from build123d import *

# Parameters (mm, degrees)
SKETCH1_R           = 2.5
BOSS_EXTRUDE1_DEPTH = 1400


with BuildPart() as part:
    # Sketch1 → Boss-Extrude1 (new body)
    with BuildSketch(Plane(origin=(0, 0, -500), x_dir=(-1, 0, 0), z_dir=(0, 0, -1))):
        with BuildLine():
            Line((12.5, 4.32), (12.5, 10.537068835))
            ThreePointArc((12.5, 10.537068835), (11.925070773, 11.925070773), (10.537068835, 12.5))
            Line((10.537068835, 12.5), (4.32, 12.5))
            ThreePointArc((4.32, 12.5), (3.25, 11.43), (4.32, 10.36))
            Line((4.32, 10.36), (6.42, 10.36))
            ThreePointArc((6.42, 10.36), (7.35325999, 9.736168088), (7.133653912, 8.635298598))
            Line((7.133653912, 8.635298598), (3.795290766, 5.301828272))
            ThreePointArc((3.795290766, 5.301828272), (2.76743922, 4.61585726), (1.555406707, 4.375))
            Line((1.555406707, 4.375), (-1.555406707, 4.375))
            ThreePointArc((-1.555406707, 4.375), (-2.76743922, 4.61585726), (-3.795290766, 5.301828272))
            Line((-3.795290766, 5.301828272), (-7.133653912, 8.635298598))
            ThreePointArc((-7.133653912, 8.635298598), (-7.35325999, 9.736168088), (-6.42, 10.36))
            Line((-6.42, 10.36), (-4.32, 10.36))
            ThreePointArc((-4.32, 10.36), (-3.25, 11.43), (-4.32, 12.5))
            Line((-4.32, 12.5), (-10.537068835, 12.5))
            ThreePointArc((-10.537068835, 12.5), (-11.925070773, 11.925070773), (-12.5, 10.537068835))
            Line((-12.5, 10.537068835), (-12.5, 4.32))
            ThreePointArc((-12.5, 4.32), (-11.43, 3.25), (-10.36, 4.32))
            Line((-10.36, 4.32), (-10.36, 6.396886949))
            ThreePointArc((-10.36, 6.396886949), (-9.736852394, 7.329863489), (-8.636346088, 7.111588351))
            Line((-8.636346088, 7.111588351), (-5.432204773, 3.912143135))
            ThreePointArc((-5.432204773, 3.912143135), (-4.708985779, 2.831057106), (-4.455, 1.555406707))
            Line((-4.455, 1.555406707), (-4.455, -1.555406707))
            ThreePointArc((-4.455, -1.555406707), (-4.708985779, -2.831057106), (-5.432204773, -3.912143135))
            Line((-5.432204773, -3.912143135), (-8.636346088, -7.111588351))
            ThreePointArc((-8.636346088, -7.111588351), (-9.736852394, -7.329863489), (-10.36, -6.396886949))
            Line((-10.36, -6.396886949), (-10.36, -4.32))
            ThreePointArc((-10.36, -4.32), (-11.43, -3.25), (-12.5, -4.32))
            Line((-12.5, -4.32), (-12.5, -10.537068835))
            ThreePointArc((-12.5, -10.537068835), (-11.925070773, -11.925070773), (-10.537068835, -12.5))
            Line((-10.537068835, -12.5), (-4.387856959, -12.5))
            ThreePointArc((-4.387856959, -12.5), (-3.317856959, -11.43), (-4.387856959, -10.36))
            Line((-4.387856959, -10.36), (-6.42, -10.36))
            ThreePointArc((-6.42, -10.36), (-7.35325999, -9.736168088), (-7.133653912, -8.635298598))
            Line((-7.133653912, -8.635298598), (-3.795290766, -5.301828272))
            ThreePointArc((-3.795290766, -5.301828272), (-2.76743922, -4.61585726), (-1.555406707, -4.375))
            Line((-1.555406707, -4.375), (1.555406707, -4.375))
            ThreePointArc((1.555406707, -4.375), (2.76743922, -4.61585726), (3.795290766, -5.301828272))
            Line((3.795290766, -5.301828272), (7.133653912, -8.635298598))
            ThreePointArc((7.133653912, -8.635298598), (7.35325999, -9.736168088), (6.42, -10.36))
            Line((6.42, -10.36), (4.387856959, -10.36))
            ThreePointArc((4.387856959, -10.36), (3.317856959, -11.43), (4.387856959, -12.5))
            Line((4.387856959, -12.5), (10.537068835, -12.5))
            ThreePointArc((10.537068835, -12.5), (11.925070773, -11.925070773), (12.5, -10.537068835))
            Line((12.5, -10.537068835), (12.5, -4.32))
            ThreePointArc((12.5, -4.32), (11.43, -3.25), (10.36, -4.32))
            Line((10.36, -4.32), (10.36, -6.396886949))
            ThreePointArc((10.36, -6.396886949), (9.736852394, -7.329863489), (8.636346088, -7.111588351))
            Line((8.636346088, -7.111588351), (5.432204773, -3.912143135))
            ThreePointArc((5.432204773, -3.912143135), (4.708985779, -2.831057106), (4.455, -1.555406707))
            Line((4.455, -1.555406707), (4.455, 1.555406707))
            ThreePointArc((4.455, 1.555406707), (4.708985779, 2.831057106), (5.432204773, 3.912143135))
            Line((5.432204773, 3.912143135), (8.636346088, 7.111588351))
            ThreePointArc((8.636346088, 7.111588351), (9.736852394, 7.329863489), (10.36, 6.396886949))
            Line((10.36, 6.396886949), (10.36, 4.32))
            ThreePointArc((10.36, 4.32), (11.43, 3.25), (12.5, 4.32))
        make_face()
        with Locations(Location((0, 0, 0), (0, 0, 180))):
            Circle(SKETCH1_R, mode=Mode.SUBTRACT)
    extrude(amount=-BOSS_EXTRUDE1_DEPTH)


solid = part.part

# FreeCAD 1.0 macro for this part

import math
import FreeCAD as App
import Part
import Sketcher

V = App.Vector
Q = App.Units.Quantity

doc = App.newDocument("Part")
params = doc.addObject("Spreadsheet::Sheet", "Params")
for row, (alias, value) in enumerate([
    ("sketch1_diameter", "5 mm"),
    ("sketch1_radius", "1.07 mm"),
    ("sketch1_radius2", "1.01 mm"),
    ("sketch1_radius3", "3.17 mm"),
    ("sketch1_width", "2.1 mm"),
    ("pad1_length", "1400 mm"),
], start=1):
    params.set(f"A{row}", alias)
    params.set(f"B{row}", "=" + value)
    params.setAlias(f"B{row}", alias)

body = doc.addObject("PartDesign::Body", "Body")

# Sketch on XY plane
sketch1 = body.newObject("Sketcher::SketchObject", "Sketch")
sketch1.AttachmentSupport = (doc.getObject("XY_Plane"), [""])
sketch1.MapMode = "FlatFace"
sketch1.AttachmentOffset = App.Placement(V(0, 0, -500), App.Rotation())
sketch1.addGeometry([
    Part.LineSegment(V(-12.5, 4.3, 0), V(-12.5, 10.5, 0)),  # 0
    Part.ArcOfCircle(Part.Circle(V(-10.5, 10.5, 0), V(0, 0, 1), 2), math.radians(90), math.radians(180)),  # 1
    Part.LineSegment(V(-10.5, 12.5, 0), V(-4.3, 12.5, 0)),  # 2
    Part.ArcOfCircle(Part.Circle(V(-4.3, 11.4, 0), V(0, 0, 1), 1.1), math.radians(-90), math.radians(90)),  # 3
    Part.LineSegment(V(-4.3, 10.4, 0), V(-6.4, 10.4, 0)),  # 4
    Part.ArcOfCircle(Part.Circle(V(-6.4, 9.3, 0), V(0, 0, 1), 1), math.radians(90), math.radians(225)),  # 5
    Part.LineSegment(V(-7.1, 8.6, 0), V(-3.8, 5.3, 0)),  # 6
    Part.ArcOfCircle(Part.Circle(V(-1.6, 7.5, 0), V(0, 0, 1), 3.2), math.radians(-135), math.radians(-90)),  # 7
    Part.LineSegment(V(-1.6, 4.4, 0), V(1.6, 4.4, 0)),  # 8
    Part.ArcOfCircle(Part.Circle(V(1.6, 7.5, 0), V(0, 0, 1), 3.2), math.radians(-90), math.radians(-45)),  # 9
    Part.LineSegment(V(3.8, 5.3, 0), V(7.1, 8.6, 0)),  # 10
    Part.ArcOfCircle(Part.Circle(V(6.4, 9.3, 0), V(0, 0, 1), 1), math.radians(-45), math.radians(90)),  # 11
    Part.LineSegment(V(6.4, 10.4, 0), V(4.3, 10.4, 0)),  # 12
    Part.ArcOfCircle(Part.Circle(V(4.3, 11.4, 0), V(0, 0, 1), 1.1), math.radians(90), math.radians(270)),  # 13
    Part.LineSegment(V(4.3, 12.5, 0), V(10.5, 12.5, 0)),  # 14
    Part.ArcOfCircle(Part.Circle(V(10.5, 10.5, 0), V(0, 0, 1), 2), math.radians(0), math.radians(90)),  # 15
    Part.LineSegment(V(12.5, 10.5, 0), V(12.5, 4.3, 0)),  # 16
    Part.ArcOfCircle(Part.Circle(V(11.4, 4.3, 0), V(0, 0, 1), 1.1), math.radians(180), math.radians(360)),  # 17
    Part.LineSegment(V(10.4, 4.3, 0), V(10.4, 6.4, 0)),  # 18
    Part.ArcOfCircle(Part.Circle(V(9.3, 6.4, 0), V(0, 0, 1), 1), math.radians(0), math.radians(135)),  # 19
    Part.LineSegment(V(8.6, 7.1, 0), V(5.4, 3.9, 0)),  # 20
    Part.ArcOfCircle(Part.Circle(V(7.8, 1.6, 0), V(0, 0, 1), 3.3), math.radians(135), math.radians(180)),  # 21
    Part.LineSegment(V(4.5, 1.6, 0), V(4.5, -1.6, 0)),  # 22
    Part.ArcOfCircle(Part.Circle(V(7.8, -1.6, 0), V(0, 0, 1), 3.3), math.radians(180), math.radians(225)),  # 23
    Part.LineSegment(V(5.4, -3.9, 0), V(8.6, -7.1, 0)),  # 24
    Part.ArcOfCircle(Part.Circle(V(9.3, -6.4, 0), V(0, 0, 1), 1), math.radians(-135), math.radians(0)),  # 25
    Part.LineSegment(V(10.4, -6.4, 0), V(10.4, -4.3, 0)),  # 26
    Part.ArcOfCircle(Part.Circle(V(11.4, -4.3, 0), V(0, 0, 1), 1.1), math.radians(0), math.radians(180)),  # 27
    Part.LineSegment(V(12.5, -4.3, 0), V(12.5, -10.5, 0)),  # 28
    Part.ArcOfCircle(Part.Circle(V(10.5, -10.5, 0), V(0, 0, 1), 2), math.radians(-90), math.radians(0)),  # 29
    Part.LineSegment(V(10.5, -12.5, 0), V(4.4, -12.5, 0)),  # 30
    Part.ArcOfCircle(Part.Circle(V(4.4, -11.4, 0), V(0, 0, 1), 1.1), math.radians(90), math.radians(270)),  # 31
    Part.LineSegment(V(4.4, -10.4, 0), V(6.4, -10.4, 0)),  # 32
    Part.ArcOfCircle(Part.Circle(V(6.4, -9.3, 0), V(0, 0, 1), 1), math.radians(-90), math.radians(45)),  # 33
    Part.LineSegment(V(7.1, -8.6, 0), V(3.8, -5.3, 0)),  # 34
    Part.ArcOfCircle(Part.Circle(V(1.6, -7.5, 0), V(0, 0, 1), 3.2), math.radians(45), math.radians(90)),  # 35
    Part.LineSegment(V(1.6, -4.4, 0), V(-1.6, -4.4, 0)),  # 36
    Part.ArcOfCircle(Part.Circle(V(-1.6, -7.5, 0), V(0, 0, 1), 3.2), math.radians(90), math.radians(135)),  # 37
    Part.LineSegment(V(-3.8, -5.3, 0), V(-7.1, -8.6, 0)),  # 38
    Part.ArcOfCircle(Part.Circle(V(-6.4, -9.3, 0), V(0, 0, 1), 1), math.radians(135), math.radians(270)),  # 39
    Part.LineSegment(V(-6.4, -10.4, 0), V(-4.4, -10.4, 0)),  # 40
    Part.ArcOfCircle(Part.Circle(V(-4.4, -11.4, 0), V(0, 0, 1), 1.1), math.radians(-90), math.radians(90)),  # 41
    Part.LineSegment(V(-4.4, -12.5, 0), V(-10.5, -12.5, 0)),  # 42
    Part.ArcOfCircle(Part.Circle(V(-10.5, -10.5, 0), V(0, 0, 1), 2), math.radians(180), math.radians(270)),  # 43
    Part.LineSegment(V(-12.5, -10.5, 0), V(-12.5, -4.3, 0)),  # 44
    Part.ArcOfCircle(Part.Circle(V(-11.4, -4.3, 0), V(0, 0, 1), 1.1), math.radians(0), math.radians(180)),  # 45
    Part.LineSegment(V(-10.4, -4.3, 0), V(-10.4, -6.4, 0)),  # 46
    Part.ArcOfCircle(Part.Circle(V(-9.3, -6.4, 0), V(0, 0, 1), 1), math.radians(-180), math.radians(-45)),  # 47
    Part.LineSegment(V(-8.6, -7.1, 0), V(-5.4, -3.9, 0)),  # 48
    Part.ArcOfCircle(Part.Circle(V(-7.8, -1.6, 0), V(0, 0, 1), 3.3), math.radians(-45), math.radians(0)),  # 49
    Part.LineSegment(V(-4.5, -1.6, 0), V(-4.5, 1.6, 0)),  # 50
    Part.ArcOfCircle(Part.Circle(V(-7.8, 1.6, 0), V(0, 0, 1), 3.3), math.radians(0), math.radians(45)),  # 51
    Part.LineSegment(V(-5.4, 3.9, 0), V(-8.6, 7.1, 0)),  # 52
    Part.ArcOfCircle(Part.Circle(V(-9.3, 6.4, 0), V(0, 0, 1), 1), math.radians(45), math.radians(180)),  # 53
    Part.LineSegment(V(-10.4, 6.4, 0), V(-10.4, 4.3, 0)),  # 54
    Part.ArcOfCircle(Part.Circle(V(-11.4, 4.3, 0), V(0, 0, 1), 1.1), math.radians(180), math.radians(360)),  # 55
    Part.Circle(V(0, 0, 0), V(0, 0, 1), 2.5),  # 56
], False)
sketch1.addConstraint([
    Sketcher.Constraint("Tangent", 0, 2, 1, 2),
    Sketcher.Constraint("Tangent", 1, 1, 2, 1),
    Sketcher.Constraint("Tangent", 2, 2, 3, 2),
    Sketcher.Constraint("Tangent", 3, 1, 4, 1),
    Sketcher.Constraint("Tangent", 4, 2, 5, 1),
    Sketcher.Constraint("Tangent", 5, 2, 6, 1),
    Sketcher.Constraint("Tangent", 6, 2, 7, 1),
    Sketcher.Constraint("Tangent", 7, 2, 8, 1),
    Sketcher.Constraint("Tangent", 8, 2, 9, 1),
    Sketcher.Constraint("Tangent", 9, 2, 10, 1),
    Sketcher.Constraint("Tangent", 10, 2, 11, 1),
    Sketcher.Constraint("Tangent", 11, 2, 12, 1),
    Sketcher.Constraint("Tangent", 12, 2, 13, 2),
    Sketcher.Constraint("Tangent", 13, 1, 14, 1),
    Sketcher.Constraint("Tangent", 14, 2, 15, 2),
    Sketcher.Constraint("Tangent", 15, 1, 16, 1),
    Sketcher.Constraint("Tangent", 16, 2, 17, 2),
    Sketcher.Constraint("Tangent", 17, 1, 18, 1),
    Sketcher.Constraint("Tangent", 18, 2, 19, 1),
    Sketcher.Constraint("Tangent", 19, 2, 20, 1),
    Sketcher.Constraint("Tangent", 20, 2, 21, 1),
    Sketcher.Constraint("Tangent", 21, 2, 22, 1),
    Sketcher.Constraint("Tangent", 22, 2, 23, 1),
    Sketcher.Constraint("Tangent", 23, 2, 24, 1),
    Sketcher.Constraint("Tangent", 24, 2, 25, 1),
    Sketcher.Constraint("Tangent", 25, 2, 26, 1),
    Sketcher.Constraint("Tangent", 26, 2, 27, 2),
    Sketcher.Constraint("Tangent", 27, 1, 28, 1),
    Sketcher.Constraint("Tangent", 28, 2, 29, 2),
    Sketcher.Constraint("Tangent", 29, 1, 30, 1),
    Sketcher.Constraint("Tangent", 30, 2, 31, 2),
    Sketcher.Constraint("Tangent", 31, 1, 32, 1),
    Sketcher.Constraint("Tangent", 32, 2, 33, 1),
    Sketcher.Constraint("Tangent", 33, 2, 34, 1),
    Sketcher.Constraint("Tangent", 34, 2, 35, 1),
    Sketcher.Constraint("Tangent", 35, 2, 36, 1),
    Sketcher.Constraint("Tangent", 36, 2, 37, 1),
    Sketcher.Constraint("Tangent", 37, 2, 38, 1),
    Sketcher.Constraint("Tangent", 38, 2, 39, 1),
    Sketcher.Constraint("Tangent", 39, 2, 40, 1),
    Sketcher.Constraint("Tangent", 40, 2, 41, 2),
    Sketcher.Constraint("Tangent", 41, 1, 42, 1),
    Sketcher.Constraint("Tangent", 42, 2, 43, 2),
    Sketcher.Constraint("Tangent", 43, 1, 44, 1),
    Sketcher.Constraint("Tangent", 44, 2, 45, 2),
    Sketcher.Constraint("Tangent", 45, 1, 46, 1),
    Sketcher.Constraint("Tangent", 46, 2, 47, 1),
    Sketcher.Constraint("Tangent", 47, 2, 48, 1),
    Sketcher.Constraint("Tangent", 48, 2, 49, 1),
    Sketcher.Constraint("Tangent", 49, 2, 50, 1),
    Sketcher.Constraint("Tangent", 50, 2, 51, 1),
    Sketcher.Constraint("Tangent", 51, 2, 52, 1),
    Sketcher.Constraint("Tangent", 52, 2, 53, 1),
    Sketcher.Constraint("Tangent", 53, 2, 54, 1),
    Sketcher.Constraint("Tangent", 54, 2, 55, 2),
    Sketcher.Constraint("Tangent", 55, 1, 0, 1),
    Sketcher.Constraint("Vertical", 0),
    Sketcher.Constraint("Horizontal", 2),
    Sketcher.Constraint("Horizontal", 4),
    Sketcher.Constraint("Horizontal", 8),
    Sketcher.Constraint("Horizontal", 12),
    Sketcher.Constraint("Horizontal", 14),
    Sketcher.Constraint("Vertical", 16),
    Sketcher.Constraint("Vertical", 18),
    Sketcher.Constraint("Vertical", 22),
    Sketcher.Constraint("Vertical", 26),
    Sketcher.Constraint("Vertical", 28),
    Sketcher.Constraint("Horizontal", 30),
    Sketcher.Constraint("Horizontal", 32),
    Sketcher.Constraint("Horizontal", 36),
    Sketcher.Constraint("Horizontal", 40),
    Sketcher.Constraint("Horizontal", 42),
    Sketcher.Constraint("Vertical", 44),
    Sketcher.Constraint("Vertical", 46),
    Sketcher.Constraint("Vertical", 50),
    Sketcher.Constraint("Vertical", 54),
    Sketcher.Constraint("Coincident", 56, 3, -1, 1),
    Sketcher.Constraint("Equal", 7, 9),
    Sketcher.Constraint("Equal", 5, 11),
    Sketcher.Constraint("Equal", 3, 13),
    Sketcher.Constraint("Equal", 1, 15),
    Sketcher.Constraint("Equal", 13, 17),
    Sketcher.Constraint("Equal", 11, 19),
    Sketcher.Constraint("Equal", 21, 23),
    Sketcher.Constraint("Equal", 19, 25),
    Sketcher.Constraint("Equal", 17, 27),
    Sketcher.Constraint("Equal", 15, 29),
    Sketcher.Constraint("Equal", 27, 31),
    Sketcher.Constraint("Equal", 25, 33),
    Sketcher.Constraint("Equal", 9, 35),
    Sketcher.Constraint("Equal", 35, 37),
    Sketcher.Constraint("Equal", 33, 39),
    Sketcher.Constraint("Equal", 31, 41),
    Sketcher.Constraint("Equal", 29, 43),
    Sketcher.Constraint("Equal", 41, 45),
    Sketcher.Constraint("Equal", 39, 47),
    Sketcher.Constraint("Equal", 23, 49),
    Sketcher.Constraint("Equal", 49, 51),
    Sketcher.Constraint("Equal", 47, 53),
    Sketcher.Constraint("Equal", 45, 55),
    Sketcher.Constraint("Symmetric", 1, 3, 29, 3, -1, 1),
    Sketcher.Constraint("Symmetric", 7, 3, 35, 3, -1, 1),
    Sketcher.Constraint("Symmetric", 11, 3, 39, 3, -1, 1),
    Sketcher.Constraint("Symmetric", 17, 3, 45, 3, -1, 1),
    Sketcher.Constraint("Symmetric", 21, 3, 49, 3, -1, 1),
    Sketcher.Constraint("Symmetric", 23, 2, 51, 2, -1, 1),
    Sketcher.Constraint("Symmetric", 5, 3, 11, 3, -2),
    Sketcher.Constraint("Symmetric", 27, 3, 45, 3, -2),
    Sketcher.Constraint("Symmetric", 34, 2, 37, 2, -2),
    Sketcher.Constraint("Symmetric", 24, 2, 47, 2, -2),
    Sketcher.Constraint("Parallel", 10, 20),
    Sketcher.Constraint("Parallel", 6, 24),
    Sketcher.Constraint("Parallel", 20, 38),
    Sketcher.Constraint("Horizontal", 17, 3, 55, 3),
    Sketcher.Constraint("Equal", 4, 12),
    Sketcher.Constraint("Equal", 32, 40),
    Sketcher.Constraint("Equal", 14, 0),
    Sketcher.Constraint("Equal", 36, 22),
    Sketcher.Constraint("Diameter", 56, Q("5 mm")),
    Sketcher.Constraint("Radius", 3, Q("1.07 mm")),
    Sketcher.Constraint("Radius", 5, Q("1.01 mm")),
    Sketcher.Constraint("Radius", 7, Q("3.17 mm")),
    Sketcher.Constraint("DistanceX", 4, 2, 4, 1, Q("2.1 mm")),
    Sketcher.Constraint("DistanceX", 0, 2, -1, 1, Q("12.5 mm")),
    Sketcher.Constraint("DistanceY", -1, 1, 1, 1, Q("12.5 mm")),
    Sketcher.Constraint("DistanceX", 3, 3, -1, 1, Q("4.32 mm")),
    Sketcher.Constraint("Radius", 1, Q("1.962931 mm")),
    Sketcher.Constraint("DistanceY", -1, 1, 7, 3, Q("7.545 mm")),
    Sketcher.Constraint("DistanceX", -1, 1, 21, 2, Q("4.455 mm")),
    Sketcher.Constraint("Radius", 21, Q("3.330487 mm")),
    Sketcher.Constraint("Distance", 6, Q("4.7177 mm")),
    Sketcher.Constraint("DistanceX", 30, 2, 30, 1, Q("6.149212 mm")),
])
sketch1.setExpression("Constraints[118]", "Params.sketch1_diameter")
sketch1.setExpression("Constraints[119]", "Params.sketch1_radius")
sketch1.setExpression("Constraints[120]", "Params.sketch1_radius2")
sketch1.setExpression("Constraints[121]", "Params.sketch1_radius3")
sketch1.setExpression("Constraints[122]", "Params.sketch1_width")
pad1 = body.newObject("PartDesign::Pad", "Pad")
pad1.Profile = sketch1
pad1.setExpression("Length", "Params.pad1_length")

doc.recompute()
